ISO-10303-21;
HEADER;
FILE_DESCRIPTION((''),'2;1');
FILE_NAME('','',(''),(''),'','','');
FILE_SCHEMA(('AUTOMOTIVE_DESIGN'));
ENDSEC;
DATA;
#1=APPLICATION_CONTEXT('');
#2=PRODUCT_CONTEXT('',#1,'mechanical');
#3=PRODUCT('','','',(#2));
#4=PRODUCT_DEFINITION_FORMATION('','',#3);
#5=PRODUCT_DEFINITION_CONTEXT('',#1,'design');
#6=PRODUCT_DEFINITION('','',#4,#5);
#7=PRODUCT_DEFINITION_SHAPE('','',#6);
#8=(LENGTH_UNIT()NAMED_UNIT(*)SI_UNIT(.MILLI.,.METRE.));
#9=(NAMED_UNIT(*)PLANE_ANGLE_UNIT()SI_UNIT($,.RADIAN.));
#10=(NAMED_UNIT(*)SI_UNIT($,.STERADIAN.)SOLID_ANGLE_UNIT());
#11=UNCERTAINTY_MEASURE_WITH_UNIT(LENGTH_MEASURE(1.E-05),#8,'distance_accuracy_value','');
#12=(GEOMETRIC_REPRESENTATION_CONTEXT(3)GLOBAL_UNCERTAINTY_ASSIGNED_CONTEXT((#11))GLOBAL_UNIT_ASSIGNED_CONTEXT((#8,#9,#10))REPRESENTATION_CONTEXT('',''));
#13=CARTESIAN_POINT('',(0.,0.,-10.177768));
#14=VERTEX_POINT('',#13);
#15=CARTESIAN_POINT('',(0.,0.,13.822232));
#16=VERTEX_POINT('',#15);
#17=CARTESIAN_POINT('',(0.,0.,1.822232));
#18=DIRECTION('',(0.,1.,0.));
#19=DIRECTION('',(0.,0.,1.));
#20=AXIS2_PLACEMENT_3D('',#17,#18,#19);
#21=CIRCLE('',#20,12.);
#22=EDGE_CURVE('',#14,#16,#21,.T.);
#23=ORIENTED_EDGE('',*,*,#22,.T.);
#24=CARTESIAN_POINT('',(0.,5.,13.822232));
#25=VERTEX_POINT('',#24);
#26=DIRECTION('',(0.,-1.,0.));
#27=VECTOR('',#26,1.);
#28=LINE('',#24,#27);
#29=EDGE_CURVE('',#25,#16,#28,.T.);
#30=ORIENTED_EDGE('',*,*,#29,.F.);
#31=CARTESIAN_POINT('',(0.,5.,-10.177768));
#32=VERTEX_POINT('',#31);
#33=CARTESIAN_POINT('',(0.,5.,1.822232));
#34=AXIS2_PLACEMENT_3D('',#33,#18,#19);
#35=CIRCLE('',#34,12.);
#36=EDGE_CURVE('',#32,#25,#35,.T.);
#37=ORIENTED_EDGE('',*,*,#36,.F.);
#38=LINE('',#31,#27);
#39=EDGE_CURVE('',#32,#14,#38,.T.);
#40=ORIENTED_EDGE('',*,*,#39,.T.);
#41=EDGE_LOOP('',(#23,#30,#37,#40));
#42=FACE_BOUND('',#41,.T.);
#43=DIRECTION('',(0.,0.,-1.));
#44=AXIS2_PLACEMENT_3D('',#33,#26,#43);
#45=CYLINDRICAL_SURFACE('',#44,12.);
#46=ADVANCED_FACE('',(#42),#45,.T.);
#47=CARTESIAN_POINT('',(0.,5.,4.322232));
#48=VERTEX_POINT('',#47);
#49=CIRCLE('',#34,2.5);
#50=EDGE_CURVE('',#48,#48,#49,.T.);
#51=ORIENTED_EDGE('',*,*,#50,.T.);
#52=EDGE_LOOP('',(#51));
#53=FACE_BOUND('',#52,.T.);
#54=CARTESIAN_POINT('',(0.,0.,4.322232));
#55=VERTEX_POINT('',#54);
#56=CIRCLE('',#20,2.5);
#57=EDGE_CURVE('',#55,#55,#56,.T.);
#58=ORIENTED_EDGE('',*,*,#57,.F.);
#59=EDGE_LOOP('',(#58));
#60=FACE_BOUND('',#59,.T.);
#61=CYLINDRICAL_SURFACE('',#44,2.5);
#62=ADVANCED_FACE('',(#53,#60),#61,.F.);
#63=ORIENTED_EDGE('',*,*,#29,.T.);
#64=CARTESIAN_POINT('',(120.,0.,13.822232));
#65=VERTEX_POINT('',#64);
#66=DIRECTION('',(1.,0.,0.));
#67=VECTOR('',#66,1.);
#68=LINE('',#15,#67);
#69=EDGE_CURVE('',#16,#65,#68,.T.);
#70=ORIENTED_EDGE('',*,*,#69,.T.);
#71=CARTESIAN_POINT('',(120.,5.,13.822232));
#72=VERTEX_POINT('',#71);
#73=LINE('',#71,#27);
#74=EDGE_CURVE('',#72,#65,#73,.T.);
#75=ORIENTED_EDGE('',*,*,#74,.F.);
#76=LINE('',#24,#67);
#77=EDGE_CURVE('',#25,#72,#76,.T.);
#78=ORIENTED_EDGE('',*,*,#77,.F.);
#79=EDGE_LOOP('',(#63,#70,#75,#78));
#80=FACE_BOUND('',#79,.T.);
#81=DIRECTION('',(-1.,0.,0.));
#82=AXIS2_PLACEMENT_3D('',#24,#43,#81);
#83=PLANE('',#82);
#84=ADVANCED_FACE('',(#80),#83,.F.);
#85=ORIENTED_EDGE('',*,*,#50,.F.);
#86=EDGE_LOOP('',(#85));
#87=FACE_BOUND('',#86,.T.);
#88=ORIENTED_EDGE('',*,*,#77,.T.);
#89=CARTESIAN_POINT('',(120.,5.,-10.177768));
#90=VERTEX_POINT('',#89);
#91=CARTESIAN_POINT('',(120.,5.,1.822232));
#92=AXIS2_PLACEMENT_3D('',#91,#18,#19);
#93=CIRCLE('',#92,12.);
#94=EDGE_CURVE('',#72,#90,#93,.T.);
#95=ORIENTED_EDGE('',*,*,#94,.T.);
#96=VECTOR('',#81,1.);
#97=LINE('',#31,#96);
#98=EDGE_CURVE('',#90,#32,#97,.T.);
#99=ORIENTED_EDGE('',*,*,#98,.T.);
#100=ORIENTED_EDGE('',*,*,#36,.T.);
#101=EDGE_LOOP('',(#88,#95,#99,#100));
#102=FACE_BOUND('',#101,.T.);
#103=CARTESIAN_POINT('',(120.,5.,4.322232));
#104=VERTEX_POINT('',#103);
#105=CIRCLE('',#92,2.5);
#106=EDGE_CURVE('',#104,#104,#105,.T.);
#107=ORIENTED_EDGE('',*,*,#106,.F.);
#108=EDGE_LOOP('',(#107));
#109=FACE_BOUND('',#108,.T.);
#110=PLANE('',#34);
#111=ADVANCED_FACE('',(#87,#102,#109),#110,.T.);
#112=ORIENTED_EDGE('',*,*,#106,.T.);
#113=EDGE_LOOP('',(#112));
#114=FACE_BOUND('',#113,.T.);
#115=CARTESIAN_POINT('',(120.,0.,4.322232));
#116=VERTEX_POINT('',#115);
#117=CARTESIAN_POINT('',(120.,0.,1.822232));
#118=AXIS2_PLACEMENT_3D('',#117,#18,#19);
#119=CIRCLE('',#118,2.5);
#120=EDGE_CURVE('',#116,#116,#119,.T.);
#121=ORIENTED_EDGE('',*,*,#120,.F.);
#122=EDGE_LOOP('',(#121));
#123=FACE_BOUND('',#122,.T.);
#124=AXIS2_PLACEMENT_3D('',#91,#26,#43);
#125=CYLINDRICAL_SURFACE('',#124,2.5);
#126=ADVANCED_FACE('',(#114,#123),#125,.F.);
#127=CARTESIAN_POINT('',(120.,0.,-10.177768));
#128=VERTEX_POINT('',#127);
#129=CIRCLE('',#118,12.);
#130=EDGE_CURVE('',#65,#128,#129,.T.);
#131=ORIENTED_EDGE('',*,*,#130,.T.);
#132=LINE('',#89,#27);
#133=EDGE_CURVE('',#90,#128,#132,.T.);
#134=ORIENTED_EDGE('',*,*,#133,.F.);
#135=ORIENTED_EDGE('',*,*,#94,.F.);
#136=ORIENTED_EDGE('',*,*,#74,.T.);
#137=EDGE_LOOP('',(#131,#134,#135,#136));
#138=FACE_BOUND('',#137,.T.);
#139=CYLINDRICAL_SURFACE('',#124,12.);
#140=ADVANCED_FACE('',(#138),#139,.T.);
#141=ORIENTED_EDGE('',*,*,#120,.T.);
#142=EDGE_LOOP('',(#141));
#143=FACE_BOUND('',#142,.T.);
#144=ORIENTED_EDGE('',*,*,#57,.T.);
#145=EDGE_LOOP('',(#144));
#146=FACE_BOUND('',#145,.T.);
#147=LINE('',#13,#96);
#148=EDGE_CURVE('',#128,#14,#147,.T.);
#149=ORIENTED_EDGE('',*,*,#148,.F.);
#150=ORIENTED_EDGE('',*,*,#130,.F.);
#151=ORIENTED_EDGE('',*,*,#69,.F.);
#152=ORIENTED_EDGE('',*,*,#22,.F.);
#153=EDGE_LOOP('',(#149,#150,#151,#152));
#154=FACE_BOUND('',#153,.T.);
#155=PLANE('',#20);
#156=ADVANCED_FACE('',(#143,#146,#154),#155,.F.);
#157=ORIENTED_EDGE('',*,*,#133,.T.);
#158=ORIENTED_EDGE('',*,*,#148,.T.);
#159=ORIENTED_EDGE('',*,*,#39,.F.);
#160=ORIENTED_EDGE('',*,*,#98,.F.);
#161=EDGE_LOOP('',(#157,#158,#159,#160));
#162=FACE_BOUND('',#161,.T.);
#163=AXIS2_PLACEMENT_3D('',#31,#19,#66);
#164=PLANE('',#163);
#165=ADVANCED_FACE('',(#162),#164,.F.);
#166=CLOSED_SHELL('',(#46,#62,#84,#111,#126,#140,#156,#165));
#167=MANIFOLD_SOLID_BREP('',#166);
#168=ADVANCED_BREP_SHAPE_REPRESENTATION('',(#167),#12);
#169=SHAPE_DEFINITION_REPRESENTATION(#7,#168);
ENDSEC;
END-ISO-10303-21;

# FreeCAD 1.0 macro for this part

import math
import FreeCAD as App
import Part
import Sketcher

V = App.Vector
Q = App.Units.Quantity

doc = App.newDocument("Part")
body = doc.addObject("PartDesign::Body", "Body")

sketch1 = body.newObject("Sketcher::SketchObject", "Sketch")
sketch1.AttachmentSupport = (doc.getObject("XZ_Plane"), [""])
sketch1.MapMode = "FlatFace"
sketch1.addGeometry(Part.LineSegment(V(120, -10.2, 0), V(0, -10.2, 0)), False)
sketch1.addGeometry(Part.ArcOfCircle(Part.Circle(V(0, 1.8, 0), V(0, 0, 1), 12), math.radians(90), math.radians(270)), False)
sketch1.addGeometry(Part.LineSegment(V(0, 13.8, 0), V(120, 13.8, 0)), False)
sketch1.addGeometry(Part.ArcOfCircle(Part.Circle(V(120, 1.8, 0), V(0, 0, 1), 12), math.radians(-90), math.radians(90)), False)
sketch1.addGeometry(Part.Circle(V(120, 1.8, 0), V(0, 0, 1), 2.5), False)
sketch1.addGeometry(Part.Circle(V(0, 1.8, 0), V(0, 0, 1), 2.5), False)
sketch1.addConstraint(Sketcher.Constraint("Tangent", 0, 2, 1, 2))
sketch1.addConstraint(Sketcher.Constraint("Tangent", 1, 1, 2, 1))
sketch1.addConstraint(Sketcher.Constraint("Tangent", 2, 2, 3, 2))
sketch1.addConstraint(Sketcher.Constraint("Tangent", 3, 1, 0, 1))
sketch1.addConstraint(Sketcher.Constraint("Horizontal", 0))
sketch1.addConstraint(Sketcher.Constraint("Horizontal", 2))
sketch1.addConstraint(Sketcher.Constraint("Coincident", 4, 3, 3, 3))
sketch1.addConstraint(Sketcher.Constraint("Coincident", 5, 3, 1, 3))
sketch1.addConstraint(Sketcher.Constraint("Equal", 4, 5))
sketch1.addConstraint(Sketcher.Constraint("PointOnObject", 1, 3, -2))
sketch1.addConstraint(Sketcher.Constraint("Diameter", 4, Q("5 mm")))
sketch1.addConstraint(Sketcher.Constraint("Radius", 1, Q("12 mm")))
sketch1.addConstraint(Sketcher.Constraint("DistanceX", 0, 2, 0, 1, Q("120 mm")))
sketch1.addConstraint(Sketcher.Constraint("DistanceY", -1, 1, 1, 3, Q("1.822232 mm")))
pad1 = body.newObject("PartDesign::Pad", "Pad")
pad1.Profile = sketch1
pad1.Length = 5
pad1.Reversed = True

doc.recompute()
